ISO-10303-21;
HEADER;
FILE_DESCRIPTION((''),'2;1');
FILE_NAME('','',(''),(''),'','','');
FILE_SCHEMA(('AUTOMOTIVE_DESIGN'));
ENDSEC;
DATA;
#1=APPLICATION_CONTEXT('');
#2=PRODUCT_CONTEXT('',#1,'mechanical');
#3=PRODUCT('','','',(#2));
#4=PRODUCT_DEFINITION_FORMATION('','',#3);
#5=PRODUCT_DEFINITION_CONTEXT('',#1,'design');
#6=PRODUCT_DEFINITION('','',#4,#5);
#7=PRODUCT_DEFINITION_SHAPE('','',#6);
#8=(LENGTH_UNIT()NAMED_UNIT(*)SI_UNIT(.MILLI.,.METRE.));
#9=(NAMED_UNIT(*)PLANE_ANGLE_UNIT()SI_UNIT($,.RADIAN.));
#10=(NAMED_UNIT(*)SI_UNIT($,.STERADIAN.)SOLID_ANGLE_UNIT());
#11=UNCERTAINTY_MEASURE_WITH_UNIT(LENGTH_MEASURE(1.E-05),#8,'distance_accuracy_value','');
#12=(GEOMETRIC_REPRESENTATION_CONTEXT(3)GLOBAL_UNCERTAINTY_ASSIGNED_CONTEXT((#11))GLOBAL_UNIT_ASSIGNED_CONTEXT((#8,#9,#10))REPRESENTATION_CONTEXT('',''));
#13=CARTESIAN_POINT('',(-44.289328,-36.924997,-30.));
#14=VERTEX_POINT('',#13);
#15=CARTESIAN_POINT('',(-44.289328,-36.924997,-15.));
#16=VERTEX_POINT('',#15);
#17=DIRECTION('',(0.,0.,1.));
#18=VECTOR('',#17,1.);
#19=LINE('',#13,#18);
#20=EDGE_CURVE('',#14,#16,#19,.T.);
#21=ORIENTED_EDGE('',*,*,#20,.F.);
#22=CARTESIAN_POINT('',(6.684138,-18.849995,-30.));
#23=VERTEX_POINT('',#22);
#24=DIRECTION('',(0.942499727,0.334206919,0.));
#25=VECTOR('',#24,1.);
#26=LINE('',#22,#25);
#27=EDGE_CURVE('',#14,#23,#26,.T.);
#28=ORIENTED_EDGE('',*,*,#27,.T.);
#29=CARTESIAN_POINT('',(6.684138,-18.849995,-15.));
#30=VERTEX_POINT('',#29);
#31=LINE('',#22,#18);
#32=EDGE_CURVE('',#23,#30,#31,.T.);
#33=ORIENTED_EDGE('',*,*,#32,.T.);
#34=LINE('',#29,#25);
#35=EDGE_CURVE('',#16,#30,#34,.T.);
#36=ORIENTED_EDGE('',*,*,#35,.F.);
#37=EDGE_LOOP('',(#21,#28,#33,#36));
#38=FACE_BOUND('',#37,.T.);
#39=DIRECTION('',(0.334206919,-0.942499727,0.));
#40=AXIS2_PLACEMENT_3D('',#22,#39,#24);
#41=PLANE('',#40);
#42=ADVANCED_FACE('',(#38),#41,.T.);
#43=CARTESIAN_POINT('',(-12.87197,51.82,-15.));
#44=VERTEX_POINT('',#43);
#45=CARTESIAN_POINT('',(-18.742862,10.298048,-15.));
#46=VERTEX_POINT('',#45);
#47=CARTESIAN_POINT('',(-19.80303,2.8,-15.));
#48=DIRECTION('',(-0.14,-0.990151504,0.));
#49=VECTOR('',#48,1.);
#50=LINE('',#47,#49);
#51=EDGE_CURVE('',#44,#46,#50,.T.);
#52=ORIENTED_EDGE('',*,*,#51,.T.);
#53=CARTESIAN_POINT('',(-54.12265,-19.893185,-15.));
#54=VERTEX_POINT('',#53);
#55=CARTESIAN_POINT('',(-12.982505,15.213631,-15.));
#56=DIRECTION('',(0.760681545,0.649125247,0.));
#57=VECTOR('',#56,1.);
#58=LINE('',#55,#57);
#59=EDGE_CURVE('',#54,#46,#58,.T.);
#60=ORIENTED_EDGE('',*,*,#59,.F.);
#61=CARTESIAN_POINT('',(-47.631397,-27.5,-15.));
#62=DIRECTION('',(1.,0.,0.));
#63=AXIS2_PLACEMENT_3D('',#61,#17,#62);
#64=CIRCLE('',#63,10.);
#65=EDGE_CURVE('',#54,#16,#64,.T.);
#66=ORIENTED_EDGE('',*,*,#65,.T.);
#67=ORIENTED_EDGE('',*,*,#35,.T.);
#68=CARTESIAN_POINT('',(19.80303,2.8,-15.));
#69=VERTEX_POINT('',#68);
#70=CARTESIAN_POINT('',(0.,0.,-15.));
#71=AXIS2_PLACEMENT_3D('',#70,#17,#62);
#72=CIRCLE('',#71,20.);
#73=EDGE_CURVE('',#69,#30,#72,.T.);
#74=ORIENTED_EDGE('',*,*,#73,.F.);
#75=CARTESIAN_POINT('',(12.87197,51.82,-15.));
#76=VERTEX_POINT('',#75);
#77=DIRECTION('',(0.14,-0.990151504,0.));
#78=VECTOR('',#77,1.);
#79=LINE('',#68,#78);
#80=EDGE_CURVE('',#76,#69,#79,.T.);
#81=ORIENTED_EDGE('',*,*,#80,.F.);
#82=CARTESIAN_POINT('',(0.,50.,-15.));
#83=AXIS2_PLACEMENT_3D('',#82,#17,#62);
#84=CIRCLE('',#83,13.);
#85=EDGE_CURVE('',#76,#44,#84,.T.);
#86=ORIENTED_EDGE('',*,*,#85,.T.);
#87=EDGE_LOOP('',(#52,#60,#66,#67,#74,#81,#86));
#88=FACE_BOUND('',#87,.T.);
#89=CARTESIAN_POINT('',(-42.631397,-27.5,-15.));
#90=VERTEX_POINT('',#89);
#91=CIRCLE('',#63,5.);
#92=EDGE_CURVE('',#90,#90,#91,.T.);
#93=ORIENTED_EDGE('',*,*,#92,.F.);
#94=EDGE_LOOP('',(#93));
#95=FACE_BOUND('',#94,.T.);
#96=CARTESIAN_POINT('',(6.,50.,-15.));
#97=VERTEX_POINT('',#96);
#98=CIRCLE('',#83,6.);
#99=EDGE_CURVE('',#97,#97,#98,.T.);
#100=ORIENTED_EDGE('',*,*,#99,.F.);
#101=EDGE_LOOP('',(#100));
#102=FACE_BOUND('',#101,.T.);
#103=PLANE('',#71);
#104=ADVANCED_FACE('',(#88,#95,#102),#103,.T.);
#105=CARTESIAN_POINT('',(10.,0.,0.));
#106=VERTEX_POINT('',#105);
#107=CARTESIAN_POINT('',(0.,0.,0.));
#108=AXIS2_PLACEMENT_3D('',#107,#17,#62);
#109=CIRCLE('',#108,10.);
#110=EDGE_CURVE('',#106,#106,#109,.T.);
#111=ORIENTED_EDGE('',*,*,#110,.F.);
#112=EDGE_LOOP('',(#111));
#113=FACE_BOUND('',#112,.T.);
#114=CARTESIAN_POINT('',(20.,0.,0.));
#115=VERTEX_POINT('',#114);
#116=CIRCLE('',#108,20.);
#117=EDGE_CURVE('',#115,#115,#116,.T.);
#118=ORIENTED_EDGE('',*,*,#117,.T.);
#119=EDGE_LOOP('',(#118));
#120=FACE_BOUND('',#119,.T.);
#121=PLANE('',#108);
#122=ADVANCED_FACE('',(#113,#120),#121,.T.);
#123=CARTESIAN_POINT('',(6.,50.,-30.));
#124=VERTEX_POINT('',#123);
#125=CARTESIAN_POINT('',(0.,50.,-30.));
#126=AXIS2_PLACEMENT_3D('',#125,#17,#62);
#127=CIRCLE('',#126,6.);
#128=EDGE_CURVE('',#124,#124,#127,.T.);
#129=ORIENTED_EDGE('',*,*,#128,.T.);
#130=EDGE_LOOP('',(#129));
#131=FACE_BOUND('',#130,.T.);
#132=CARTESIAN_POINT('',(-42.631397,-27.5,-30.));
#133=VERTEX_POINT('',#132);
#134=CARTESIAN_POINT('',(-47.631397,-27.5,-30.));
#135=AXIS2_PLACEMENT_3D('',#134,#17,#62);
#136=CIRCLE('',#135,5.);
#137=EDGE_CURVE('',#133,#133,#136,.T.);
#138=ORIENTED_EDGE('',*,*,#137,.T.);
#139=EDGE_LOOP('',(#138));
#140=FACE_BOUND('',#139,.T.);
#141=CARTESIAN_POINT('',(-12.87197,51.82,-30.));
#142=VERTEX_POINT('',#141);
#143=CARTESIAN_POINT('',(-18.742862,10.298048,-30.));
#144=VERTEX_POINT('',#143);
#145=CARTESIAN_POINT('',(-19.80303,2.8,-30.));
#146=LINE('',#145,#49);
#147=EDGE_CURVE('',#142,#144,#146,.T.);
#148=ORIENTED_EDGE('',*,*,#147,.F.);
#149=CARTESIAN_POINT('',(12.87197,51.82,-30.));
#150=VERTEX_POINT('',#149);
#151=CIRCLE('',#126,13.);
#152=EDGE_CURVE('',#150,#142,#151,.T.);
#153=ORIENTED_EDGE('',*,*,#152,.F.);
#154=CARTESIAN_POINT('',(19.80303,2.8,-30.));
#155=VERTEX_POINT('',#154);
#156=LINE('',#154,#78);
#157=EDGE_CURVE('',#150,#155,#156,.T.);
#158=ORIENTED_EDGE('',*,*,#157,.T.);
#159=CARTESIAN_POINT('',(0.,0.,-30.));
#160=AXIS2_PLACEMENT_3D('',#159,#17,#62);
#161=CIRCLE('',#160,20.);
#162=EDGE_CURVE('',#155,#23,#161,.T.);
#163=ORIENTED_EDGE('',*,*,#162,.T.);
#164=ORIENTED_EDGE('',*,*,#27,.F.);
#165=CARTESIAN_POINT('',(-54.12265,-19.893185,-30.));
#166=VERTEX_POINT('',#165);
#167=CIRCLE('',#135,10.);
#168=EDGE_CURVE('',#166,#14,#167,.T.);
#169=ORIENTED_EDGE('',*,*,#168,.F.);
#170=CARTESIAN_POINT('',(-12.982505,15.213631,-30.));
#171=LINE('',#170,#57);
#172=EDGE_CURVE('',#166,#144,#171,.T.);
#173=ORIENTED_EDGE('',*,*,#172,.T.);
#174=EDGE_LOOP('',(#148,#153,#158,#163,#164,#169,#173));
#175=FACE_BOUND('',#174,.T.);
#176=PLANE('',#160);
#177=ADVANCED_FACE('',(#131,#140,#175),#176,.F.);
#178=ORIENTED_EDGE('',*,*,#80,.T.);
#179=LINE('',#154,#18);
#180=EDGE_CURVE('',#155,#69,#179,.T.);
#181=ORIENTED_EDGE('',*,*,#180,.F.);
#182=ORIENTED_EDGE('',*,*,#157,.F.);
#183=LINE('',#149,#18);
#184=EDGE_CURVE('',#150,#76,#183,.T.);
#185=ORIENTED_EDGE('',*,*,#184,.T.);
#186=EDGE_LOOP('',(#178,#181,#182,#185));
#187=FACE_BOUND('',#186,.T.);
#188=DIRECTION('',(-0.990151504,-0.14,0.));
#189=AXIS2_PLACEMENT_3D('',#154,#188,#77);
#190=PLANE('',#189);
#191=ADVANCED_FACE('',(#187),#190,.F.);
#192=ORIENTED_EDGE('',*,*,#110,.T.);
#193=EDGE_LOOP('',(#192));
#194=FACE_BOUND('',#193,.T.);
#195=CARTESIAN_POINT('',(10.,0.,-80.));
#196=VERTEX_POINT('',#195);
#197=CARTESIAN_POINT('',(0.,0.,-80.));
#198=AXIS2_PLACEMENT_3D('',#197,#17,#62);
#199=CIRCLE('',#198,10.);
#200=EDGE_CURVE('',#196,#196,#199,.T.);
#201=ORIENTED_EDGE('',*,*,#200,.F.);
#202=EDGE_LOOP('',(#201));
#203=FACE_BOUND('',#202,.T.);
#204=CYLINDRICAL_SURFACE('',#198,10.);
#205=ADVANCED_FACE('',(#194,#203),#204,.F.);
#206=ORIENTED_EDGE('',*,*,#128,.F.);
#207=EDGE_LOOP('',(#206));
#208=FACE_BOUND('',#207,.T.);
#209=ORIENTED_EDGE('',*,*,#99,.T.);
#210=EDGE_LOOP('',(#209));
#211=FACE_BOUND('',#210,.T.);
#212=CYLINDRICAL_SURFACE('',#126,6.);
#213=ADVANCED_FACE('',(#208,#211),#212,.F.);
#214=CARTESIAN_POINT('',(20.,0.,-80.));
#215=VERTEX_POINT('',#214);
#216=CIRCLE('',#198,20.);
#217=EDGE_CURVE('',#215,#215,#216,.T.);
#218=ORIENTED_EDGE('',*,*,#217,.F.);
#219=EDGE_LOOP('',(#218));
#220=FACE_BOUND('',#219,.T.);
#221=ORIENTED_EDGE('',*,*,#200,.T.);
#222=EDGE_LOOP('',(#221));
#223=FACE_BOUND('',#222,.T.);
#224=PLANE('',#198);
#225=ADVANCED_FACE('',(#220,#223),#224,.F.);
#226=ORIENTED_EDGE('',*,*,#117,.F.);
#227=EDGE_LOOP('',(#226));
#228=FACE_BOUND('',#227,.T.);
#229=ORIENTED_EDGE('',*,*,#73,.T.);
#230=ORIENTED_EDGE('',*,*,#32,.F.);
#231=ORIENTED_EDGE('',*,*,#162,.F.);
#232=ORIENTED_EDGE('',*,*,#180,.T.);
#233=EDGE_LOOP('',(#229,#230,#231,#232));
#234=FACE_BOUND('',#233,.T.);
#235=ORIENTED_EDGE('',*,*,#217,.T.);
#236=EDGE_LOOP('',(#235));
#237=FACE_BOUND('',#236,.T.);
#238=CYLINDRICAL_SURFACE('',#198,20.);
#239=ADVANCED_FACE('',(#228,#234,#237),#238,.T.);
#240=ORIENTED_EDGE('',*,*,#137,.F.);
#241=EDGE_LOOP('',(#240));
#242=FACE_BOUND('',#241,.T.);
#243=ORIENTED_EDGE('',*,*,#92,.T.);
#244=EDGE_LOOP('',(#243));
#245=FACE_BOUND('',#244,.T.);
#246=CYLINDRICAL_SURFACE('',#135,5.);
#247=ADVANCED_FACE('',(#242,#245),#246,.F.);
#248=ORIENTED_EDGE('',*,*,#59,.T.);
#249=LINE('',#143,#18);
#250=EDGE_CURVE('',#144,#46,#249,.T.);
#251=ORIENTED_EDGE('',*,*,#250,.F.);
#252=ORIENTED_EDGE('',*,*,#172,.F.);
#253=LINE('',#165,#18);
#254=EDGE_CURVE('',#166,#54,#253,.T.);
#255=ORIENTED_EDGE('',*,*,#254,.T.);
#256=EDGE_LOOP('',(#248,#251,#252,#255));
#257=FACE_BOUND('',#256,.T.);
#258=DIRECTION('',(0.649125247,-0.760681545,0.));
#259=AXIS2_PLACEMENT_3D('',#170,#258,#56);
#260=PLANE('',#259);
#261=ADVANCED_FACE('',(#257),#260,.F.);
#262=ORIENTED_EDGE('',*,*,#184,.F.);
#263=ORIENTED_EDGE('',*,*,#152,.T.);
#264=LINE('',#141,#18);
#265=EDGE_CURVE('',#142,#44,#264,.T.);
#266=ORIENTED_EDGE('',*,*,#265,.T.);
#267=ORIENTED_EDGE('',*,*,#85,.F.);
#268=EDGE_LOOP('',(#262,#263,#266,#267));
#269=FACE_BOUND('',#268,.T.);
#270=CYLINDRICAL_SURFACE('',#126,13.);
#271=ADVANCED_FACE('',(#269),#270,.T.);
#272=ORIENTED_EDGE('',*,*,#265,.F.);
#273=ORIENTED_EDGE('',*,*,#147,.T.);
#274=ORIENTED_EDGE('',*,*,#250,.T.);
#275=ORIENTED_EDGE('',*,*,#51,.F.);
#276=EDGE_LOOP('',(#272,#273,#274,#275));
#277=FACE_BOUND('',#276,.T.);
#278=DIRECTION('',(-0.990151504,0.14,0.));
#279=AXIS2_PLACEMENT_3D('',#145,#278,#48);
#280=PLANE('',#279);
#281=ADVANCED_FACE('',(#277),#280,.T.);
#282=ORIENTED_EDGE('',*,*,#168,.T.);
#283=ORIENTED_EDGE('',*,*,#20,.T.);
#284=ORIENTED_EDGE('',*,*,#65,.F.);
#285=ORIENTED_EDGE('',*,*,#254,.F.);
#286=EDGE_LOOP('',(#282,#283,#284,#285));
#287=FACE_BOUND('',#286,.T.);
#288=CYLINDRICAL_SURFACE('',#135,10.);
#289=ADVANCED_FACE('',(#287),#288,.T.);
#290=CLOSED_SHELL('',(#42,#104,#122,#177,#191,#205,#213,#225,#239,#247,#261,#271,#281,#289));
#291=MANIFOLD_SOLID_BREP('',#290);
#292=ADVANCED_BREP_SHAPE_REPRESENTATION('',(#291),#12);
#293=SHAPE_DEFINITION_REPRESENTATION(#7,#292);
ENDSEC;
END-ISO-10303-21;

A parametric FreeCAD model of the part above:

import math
import FreeCAD as App
import Part
import Sketcher

V = App.Vector
Q = App.Units.Quantity

doc = App.newDocument("Part")
body = doc.addObject("PartDesign::Body", "Body")

# Sketch on XY plane
sketch1 = body.newObject("Sketcher::SketchObject", "Sketch")
sketch1.AttachmentSupport = (doc.getObject("XY_Plane"), [""])
sketch1.MapMode = "FlatFace"
sketch1.addGeometry([
    Part.Circle(V(0, 0, 0), V(0, 0, 1), 20),
    Part.Circle(V(0, 0, 0), V(0, 0, 1), 10),
], False)
sketch1.addConstraint([
    Sketcher.Constraint("Coincident", 0, 3, -1, 1),
    Sketcher.Constraint("Coincident", 1, 3, -1, 1),
    Sketcher.Constraint("Diameter", 0, Q("40 mm")),
    Sketcher.Constraint("Diameter", 1, Q("20 mm")),
])
pad1 = body.newObject("PartDesign::Pad", "Pad")
pad1.Profile = sketch1
pad1.Length = 80
pad1.Reversed = True

# Sketch on XY plane
sketch2 = body.newObject("Sketcher::SketchObject", "Sketch001")
sketch2.AttachmentSupport = (doc.getObject("XY_Plane"), [""])
sketch2.MapMode = "FlatFace"
sketch2.AttachmentOffset = App.Placement(V(0, 0, -15), App.Rotation())
sketch2.addGeometry([
    Part.LineSegment(V(-13, 52, 0), V(-19, 10, 0)),  # 0
    Part.LineSegment(V(-19, 10, 0), V(-54, -20, 0)),  # 1
    Part.ArcOfCircle(Part.Circle(V(-48, -28, 0), V(0, 0, 1), 10), math.radians(130), math.radians(290)),  # 2
    Part.LineSegment(V(-44, -37, 0), V(7, -19, 0)),  # 3
    Part.ArcOfCircle(Part.Circle(V(0, 0, 0), V(0, 0, 1), 20), math.radians(172), math.radians(290)),  # 4
    Part.ArcOfCircle(Part.Circle(V(0, 0, 0), V(0, 0, 1), 20), math.radians(130), math.radians(172)),  # 5
    Part.ArcOfCircle(Part.Circle(V(0, 0, 0), V(0, 0, 1), 20), math.radians(8), math.radians(130)),  # 6
    Part.LineSegment(V(20, 3, 0), V(13, 52, 0)),  # 7
    Part.ArcOfCircle(Part.Circle(V(0, 50, 0), V(0, 0, 1), 13), math.radians(8), math.radians(172)),  # 8
    Part.Circle(V(0, 50, 0), V(0, 0, 1), 6),  # 9
    Part.Circle(V(-48, -28, 0), V(0, 0, 1), 5),  # 10
], False)
sketch2.addConstraint([
    Sketcher.Constraint("Coincident", 0, 2, 1, 1),
    Sketcher.Constraint("Tangent", 1, 2, 2, 1),
    Sketcher.Constraint("Tangent", 2, 2, 3, 1),
    Sketcher.Constraint("Tangent", 3, 2, 4, 2),
    Sketcher.Constraint("Tangent", 4, 1, 5, 2),
    Sketcher.Constraint("Tangent", 5, 1, 6, 2),
    Sketcher.Constraint("Tangent", 6, 1, 7, 1),
    Sketcher.Constraint("Tangent", 7, 2, 8, 1),
    Sketcher.Constraint("Tangent", 8, 2, 0, 1),
    Sketcher.Constraint("Coincident", 4, 3, -1, 1),
    Sketcher.Constraint("Coincident", 6, 3, -1, 1),
    Sketcher.Constraint("Coincident", 9, 3, 8, 3),
    Sketcher.Constraint("Coincident", 10, 3, 2, 3),
    Sketcher.Constraint("Symmetric", 7, 2, 8, 2, -2),
    Sketcher.Constraint("Horizontal", 4, 1, 6, 1),
    Sketcher.Constraint("Diameter", 9, Q("12 mm")),
    Sketcher.Constraint("Diameter", 10, Q("10 mm")),
    Sketcher.Constraint("Radius", 2, Q("10 mm")),
    Sketcher.Constraint("Radius", 4, Q("20 mm")),
    Sketcher.Constraint("Radius", 8, Q("13 mm")),
    Sketcher.Constraint("DistanceY", -1, 1, 8, 3, Q("50 mm")),
    Sketcher.Constraint("DistanceY", 2, 3, -1, 1, Q("27.5 mm")),
    Sketcher.Constraint("DistanceX", 0, 2, 3, 2, Q("25.427001 mm")),
    Sketcher.Constraint("Distance", 0, Q("41.934948 mm")),
    Sketcher.Constraint("DistanceY", -1, 1, 5, 1, Q("15.213631 mm")),
])
pad2 = body.newObject("PartDesign::Pad", "Pad001")
pad2.Profile = sketch2
pad2.Length = 15
pad2.Reversed = True

doc.recompute()
